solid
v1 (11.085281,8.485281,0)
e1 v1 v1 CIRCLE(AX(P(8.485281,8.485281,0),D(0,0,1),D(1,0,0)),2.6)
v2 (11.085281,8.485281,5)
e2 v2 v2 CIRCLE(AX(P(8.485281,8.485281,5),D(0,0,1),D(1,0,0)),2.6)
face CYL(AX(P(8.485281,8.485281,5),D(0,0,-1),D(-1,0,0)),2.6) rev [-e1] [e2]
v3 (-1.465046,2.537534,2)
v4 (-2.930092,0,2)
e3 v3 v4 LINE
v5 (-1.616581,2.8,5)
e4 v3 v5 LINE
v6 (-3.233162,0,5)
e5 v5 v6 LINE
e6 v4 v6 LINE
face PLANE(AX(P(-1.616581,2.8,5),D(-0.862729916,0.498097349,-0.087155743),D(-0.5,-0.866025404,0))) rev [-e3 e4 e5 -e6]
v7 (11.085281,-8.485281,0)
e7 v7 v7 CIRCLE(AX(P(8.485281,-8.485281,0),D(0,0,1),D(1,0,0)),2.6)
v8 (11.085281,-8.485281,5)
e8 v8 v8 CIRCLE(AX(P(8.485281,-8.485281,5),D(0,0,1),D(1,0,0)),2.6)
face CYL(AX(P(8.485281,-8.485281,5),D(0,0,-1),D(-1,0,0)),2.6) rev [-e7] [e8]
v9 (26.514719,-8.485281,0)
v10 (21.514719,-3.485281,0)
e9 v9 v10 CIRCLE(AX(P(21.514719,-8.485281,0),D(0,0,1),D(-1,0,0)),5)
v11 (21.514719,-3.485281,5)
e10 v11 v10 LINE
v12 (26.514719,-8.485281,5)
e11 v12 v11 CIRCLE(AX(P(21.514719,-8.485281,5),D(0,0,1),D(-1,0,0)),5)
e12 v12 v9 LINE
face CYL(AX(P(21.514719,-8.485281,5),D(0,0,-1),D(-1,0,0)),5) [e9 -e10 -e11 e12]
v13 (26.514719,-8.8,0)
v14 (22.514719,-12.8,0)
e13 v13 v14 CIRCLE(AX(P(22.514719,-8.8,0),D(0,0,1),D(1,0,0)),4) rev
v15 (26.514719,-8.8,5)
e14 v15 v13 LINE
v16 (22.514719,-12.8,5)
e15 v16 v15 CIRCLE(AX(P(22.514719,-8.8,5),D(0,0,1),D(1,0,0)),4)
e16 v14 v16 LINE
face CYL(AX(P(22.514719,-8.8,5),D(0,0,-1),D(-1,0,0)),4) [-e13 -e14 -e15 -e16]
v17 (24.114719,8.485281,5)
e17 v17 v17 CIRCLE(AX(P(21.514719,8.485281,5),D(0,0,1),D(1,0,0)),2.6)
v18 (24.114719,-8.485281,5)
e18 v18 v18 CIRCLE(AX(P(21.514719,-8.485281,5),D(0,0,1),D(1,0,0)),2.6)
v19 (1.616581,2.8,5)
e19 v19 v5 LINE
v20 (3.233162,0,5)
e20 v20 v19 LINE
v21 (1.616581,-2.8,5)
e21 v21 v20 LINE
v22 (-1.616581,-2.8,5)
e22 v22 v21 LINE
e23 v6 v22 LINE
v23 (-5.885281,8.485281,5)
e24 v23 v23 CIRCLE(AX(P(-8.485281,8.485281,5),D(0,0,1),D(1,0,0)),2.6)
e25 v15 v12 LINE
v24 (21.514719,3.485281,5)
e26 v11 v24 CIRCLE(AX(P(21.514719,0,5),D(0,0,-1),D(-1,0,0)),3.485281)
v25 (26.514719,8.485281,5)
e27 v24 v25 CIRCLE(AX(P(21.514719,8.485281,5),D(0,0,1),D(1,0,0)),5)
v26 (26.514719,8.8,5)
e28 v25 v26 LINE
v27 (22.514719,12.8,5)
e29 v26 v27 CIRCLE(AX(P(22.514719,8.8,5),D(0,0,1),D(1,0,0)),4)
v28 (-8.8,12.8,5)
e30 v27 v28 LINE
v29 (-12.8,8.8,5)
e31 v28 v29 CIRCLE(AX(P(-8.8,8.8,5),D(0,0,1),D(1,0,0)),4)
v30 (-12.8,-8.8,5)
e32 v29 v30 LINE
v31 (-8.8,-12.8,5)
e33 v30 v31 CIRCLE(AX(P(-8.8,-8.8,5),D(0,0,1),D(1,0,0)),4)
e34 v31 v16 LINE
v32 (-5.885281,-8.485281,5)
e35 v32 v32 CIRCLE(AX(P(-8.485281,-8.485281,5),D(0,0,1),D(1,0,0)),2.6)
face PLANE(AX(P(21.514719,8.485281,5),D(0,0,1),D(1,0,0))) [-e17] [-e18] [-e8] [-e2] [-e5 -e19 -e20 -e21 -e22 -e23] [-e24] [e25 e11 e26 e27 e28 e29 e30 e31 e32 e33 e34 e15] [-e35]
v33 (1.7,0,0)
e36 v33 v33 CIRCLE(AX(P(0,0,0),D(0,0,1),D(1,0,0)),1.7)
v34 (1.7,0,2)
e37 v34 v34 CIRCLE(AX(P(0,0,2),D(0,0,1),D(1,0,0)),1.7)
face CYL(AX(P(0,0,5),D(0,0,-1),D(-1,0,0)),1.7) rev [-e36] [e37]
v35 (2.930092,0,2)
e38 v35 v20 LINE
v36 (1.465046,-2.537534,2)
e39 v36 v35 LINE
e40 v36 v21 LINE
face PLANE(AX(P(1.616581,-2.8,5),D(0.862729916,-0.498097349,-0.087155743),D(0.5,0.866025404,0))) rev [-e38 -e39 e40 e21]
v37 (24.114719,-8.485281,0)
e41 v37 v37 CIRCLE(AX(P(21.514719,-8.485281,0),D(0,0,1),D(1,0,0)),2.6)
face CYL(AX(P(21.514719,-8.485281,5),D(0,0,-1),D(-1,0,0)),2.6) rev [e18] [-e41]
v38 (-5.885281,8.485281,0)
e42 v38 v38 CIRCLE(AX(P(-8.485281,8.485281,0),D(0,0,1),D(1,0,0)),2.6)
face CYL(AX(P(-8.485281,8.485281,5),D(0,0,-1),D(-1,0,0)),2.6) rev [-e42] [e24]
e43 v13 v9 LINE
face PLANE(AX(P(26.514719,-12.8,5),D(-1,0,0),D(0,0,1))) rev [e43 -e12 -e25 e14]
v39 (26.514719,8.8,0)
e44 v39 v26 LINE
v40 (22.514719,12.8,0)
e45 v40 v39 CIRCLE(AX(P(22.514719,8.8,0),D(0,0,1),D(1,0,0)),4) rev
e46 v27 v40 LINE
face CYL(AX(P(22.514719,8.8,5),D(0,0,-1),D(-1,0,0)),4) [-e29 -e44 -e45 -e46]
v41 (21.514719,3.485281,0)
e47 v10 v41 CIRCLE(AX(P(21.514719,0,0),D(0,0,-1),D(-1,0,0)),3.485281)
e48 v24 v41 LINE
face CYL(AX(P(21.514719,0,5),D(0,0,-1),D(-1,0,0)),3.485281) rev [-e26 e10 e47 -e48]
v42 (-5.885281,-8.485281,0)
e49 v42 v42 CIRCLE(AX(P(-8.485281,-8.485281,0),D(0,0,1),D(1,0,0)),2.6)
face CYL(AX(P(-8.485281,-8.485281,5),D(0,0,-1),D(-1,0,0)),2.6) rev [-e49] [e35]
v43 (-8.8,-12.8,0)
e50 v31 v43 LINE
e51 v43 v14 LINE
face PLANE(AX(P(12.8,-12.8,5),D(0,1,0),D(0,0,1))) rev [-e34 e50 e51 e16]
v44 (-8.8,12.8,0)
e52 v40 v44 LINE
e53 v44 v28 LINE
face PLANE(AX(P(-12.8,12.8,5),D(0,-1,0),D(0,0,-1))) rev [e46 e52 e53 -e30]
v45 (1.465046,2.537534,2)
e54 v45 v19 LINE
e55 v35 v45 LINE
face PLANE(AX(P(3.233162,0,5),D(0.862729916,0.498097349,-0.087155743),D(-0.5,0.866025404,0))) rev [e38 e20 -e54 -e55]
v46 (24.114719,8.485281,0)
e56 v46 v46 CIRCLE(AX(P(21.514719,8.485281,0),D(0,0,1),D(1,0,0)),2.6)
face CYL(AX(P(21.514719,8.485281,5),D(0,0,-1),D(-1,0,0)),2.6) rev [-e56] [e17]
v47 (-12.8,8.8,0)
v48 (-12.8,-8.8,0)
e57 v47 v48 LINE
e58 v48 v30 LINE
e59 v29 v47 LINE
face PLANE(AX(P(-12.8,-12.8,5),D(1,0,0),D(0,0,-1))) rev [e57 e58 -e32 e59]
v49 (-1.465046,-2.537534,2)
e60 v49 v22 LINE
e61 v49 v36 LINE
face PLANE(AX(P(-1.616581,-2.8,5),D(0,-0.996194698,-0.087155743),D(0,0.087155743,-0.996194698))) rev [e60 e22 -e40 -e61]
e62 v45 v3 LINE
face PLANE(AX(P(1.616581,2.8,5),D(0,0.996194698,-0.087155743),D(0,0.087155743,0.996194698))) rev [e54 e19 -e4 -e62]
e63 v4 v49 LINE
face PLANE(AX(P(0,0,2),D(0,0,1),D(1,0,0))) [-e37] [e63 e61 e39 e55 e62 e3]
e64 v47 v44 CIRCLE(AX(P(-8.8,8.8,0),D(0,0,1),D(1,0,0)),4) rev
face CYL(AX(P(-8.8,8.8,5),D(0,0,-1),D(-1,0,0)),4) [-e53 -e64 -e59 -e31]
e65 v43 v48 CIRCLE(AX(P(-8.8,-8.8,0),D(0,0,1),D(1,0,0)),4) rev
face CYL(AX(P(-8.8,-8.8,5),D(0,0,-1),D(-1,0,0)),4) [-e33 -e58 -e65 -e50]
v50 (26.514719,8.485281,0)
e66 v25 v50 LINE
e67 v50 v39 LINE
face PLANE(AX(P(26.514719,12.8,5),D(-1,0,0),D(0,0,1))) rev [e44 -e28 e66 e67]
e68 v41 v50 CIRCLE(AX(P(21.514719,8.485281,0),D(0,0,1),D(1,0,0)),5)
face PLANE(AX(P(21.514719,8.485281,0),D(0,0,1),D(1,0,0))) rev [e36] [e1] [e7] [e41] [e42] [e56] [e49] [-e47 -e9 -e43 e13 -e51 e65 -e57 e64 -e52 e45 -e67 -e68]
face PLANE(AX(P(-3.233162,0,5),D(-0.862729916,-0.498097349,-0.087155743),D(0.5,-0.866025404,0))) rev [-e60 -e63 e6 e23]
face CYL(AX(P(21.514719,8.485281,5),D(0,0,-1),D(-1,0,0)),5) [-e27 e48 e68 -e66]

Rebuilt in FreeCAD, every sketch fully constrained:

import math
import FreeCAD as App
import Part
import Sketcher
from FreeCAD import Vector
Q = App.Units.Quantity


def edges_at(feature, points):
    """Names of the edges that pass closest to the given points."""
    edges = feature.Shape.Edges
    near = lambda p: min(range(len(edges)), key=lambda i: edges[i].distToShape(Part.Vertex(*p))[0])
    return sorted({f"Edge{near(p) + 1}" for p in points})

doc = App.newDocument("Part")
params = doc.addObject("Spreadsheet::Sheet", "Params")
for row, (alias, value) in enumerate([
    ("sketch1_radius", "5 mm"),
    ("sketch1_diameter", "5.2 mm"),
    ("sketch1_diameter2", "3.4 mm"),
    ("sketch1_height", "25.6 mm"),
    ("pad1_length", "5 mm"),
    ("pocket1_length", "3 mm"),
    ("pocket1_taper", "-5 deg"),
    ("fillet_radius", "4 mm"),
], start=1):
    params.set(f"A{row}", alias)
    params.set(f"B{row}", "=" + value)
    params.setAlias(f"B{row}", alias)

body = doc.addObject("PartDesign::Body", "Body")

# Sketch on XY plane
sketch1 = body.newObject("Sketcher::SketchObject", "Sketch")
sketch1.AttachmentSupport = (doc.getObject("XY_Plane"), [""])
sketch1.MapMode = "FlatFace"
sketch1.addGeometry(Part.LineSegment(Vector(-12.8, -12.8, 0), Vector(26.5, -12.8, 0)), False)
sketch1.addGeometry(Part.LineSegment(Vector(26.5, -12.8, 0), Vector(26.5, -8.5, 0)), False)
sketch1.addGeometry(Part.ArcOfCircle(Part.Circle(Vector(21.5, -8.5, 0), Vector(0, 0, 1), 5), math.radians(0), math.radians(90)), False)
sketch1.addGeometry(Part.ArcOfCircle(Part.Circle(Vector(21.5, 0, 0), Vector(0, 0, 1), 3.5), math.radians(90), math.radians(270)), False)
sketch1.addGeometry(Part.ArcOfCircle(Part.Circle(Vector(21.5, 8.5, 0), Vector(0, 0, 1), 5), math.radians(-90), math.radians(0)), False)
sketch1.addGeometry(Part.LineSegment(Vector(26.5, 8.5, 0), Vector(26.5, 12.8, 0)), False)
sketch1.addGeometry(Part.LineSegment(Vector(26.5, 12.8, 0), Vector(-12.8, 12.8, 0)), False)
sketch1.addGeometry(Part.LineSegment(Vector(-12.8, 12.8, 0), Vector(-12.8, -12.8, 0)), False)
sketch1.addGeometry(Part.Circle(Vector(-8.5, -8.5, 0), Vector(0, 0, 1), 2.6), False)
sketch1.addGeometry(Part.Circle(Vector(8.5, -8.5, 0), Vector(0, 0, 1), 2.6), False)
sketch1.addGeometry(Part.Circle(Vector(21.5, -8.5, 0), Vector(0, 0, 1), 2.6), False)
sketch1.addGeometry(Part.Circle(Vector(0, 0, 0), Vector(0, 0, 1), 1.7), False)
sketch1.addGeometry(Part.Circle(Vector(-8.5, 8.5, 0), Vector(0, 0, 1), 2.6), False)
sketch1.addGeometry(Part.Circle(Vector(8.5, 8.5, 0), Vector(0, 0, 1), 2.6), False)
sketch1.addGeometry(Part.Circle(Vector(21.5, 8.5, 0), Vector(0, 0, 1), 2.6), False)
sketch1.addConstraint(Sketcher.Constraint("Coincident", 0, 2, 1, 1))
sketch1.addConstraint(Sketcher.Constraint("Tangent", 1, 2, 2, 1))
sketch1.addConstraint(Sketcher.Constraint("Tangent", 2, 2, 3, 2))
sketch1.addConstraint(Sketcher.Constraint("Tangent", 3, 1, 4, 1))
sketch1.addConstraint(Sketcher.Constraint("Tangent", 4, 2, 5, 1))
sketch1.addConstraint(Sketcher.Constraint("Coincident", 5, 2, 6, 1))
sketch1.addConstraint(Sketcher.Constraint("Coincident", 6, 2, 7, 1))
sketch1.addConstraint(Sketcher.Constraint("Coincident", 7, 2, 0, 1))
sketch1.addConstraint(Sketcher.Constraint("Horizontal", 0))
sketch1.addConstraint(Sketcher.Constraint("Vertical", 1))
sketch1.addConstraint(Sketcher.Constraint("Vertical", 5))
sketch1.addConstraint(Sketcher.Constraint("Horizontal", 6))
sketch1.addConstraint(Sketcher.Constraint("Vertical", 7))
sketch1.addConstraint(Sketcher.Constraint("Coincident", 11, 3, -1, 1))
sketch1.addConstraint(Sketcher.Constraint("Coincident", 10, 3, 2, 3))
sketch1.addConstraint(Sketcher.Constraint("Coincident", 14, 3, 4, 3))
sketch1.addConstraint(Sketcher.Constraint("Equal", 2, 4))
sketch1.addConstraint(Sketcher.Constraint("Equal", 8, 9))
sketch1.addConstraint(Sketcher.Constraint("Equal", 9, 10))
sketch1.addConstraint(Sketcher.Constraint("Equal", 10, 12))
sketch1.addConstraint(Sketcher.Constraint("Equal", 12, 13))
sketch1.addConstraint(Sketcher.Constraint("Equal", 13, 14))
sketch1.addConstraint(Sketcher.Constraint("Symmetric", 9, 3, 12, 3, -1, 1))
sketch1.addConstraint(Sketcher.Constraint("Symmetric", 8, 3, 13, 3, -1, 1))
sketch1.addConstraint(Sketcher.Constraint("Symmetric", 8, 3, 9, 3, -2))
sketch1.addConstraint(Sketcher.Constraint("Symmetric", 2, 3, 4, 3, -1))
sketch1.addConstraint(Sketcher.Constraint("Horizontal", 2, 3, 8, 3))
sketch1.addConstraint(Sketcher.Constraint("Vertical", 2, 3, 3, 3))
sketch1.addConstraint(Sketcher.Constraint("Equal", 1, 5))
sketch1.addConstraint(Sketcher.Constraint("Radius", 2, 5.0))
sketch1.addConstraint(Sketcher.Constraint("Diameter", 8, 5.2))
sketch1.addConstraint(Sketcher.Constraint("Diameter", 11, 3.4))
sketch1.addConstraint(Sketcher.Constraint("DistanceY", 7, 2, 7, 1, 25.6))
sketch1.addConstraint(Sketcher.Constraint("DistanceX", 8, 3, 2, 3, 30.0))
sketch1.addConstraint(Sketcher.Constraint("DistanceX", 6, 2, -1, 1, 12.8))
sketch1.addConstraint(Sketcher.Constraint("Radius", 3, 3.485281))
sketch1.addConstraint(Sketcher.Constraint("DistanceX", 0, 1, 0, 2, 39.314719))
sketch1.setExpression("Constraints[29]", "Params.sketch1_radius")
sketch1.setExpression("Constraints[30]", "Params.sketch1_diameter")
sketch1.setExpression("Constraints[31]", "Params.sketch1_diameter2")
sketch1.setExpression("Constraints[32]", "Params.sketch1_height")
pad1 = body.newObject("PartDesign::Pad", "Pad")
pad1.Profile = sketch1
pad1.setExpression("Length", "Params.pad1_length")

# Sketch on XY plane
sketch2 = body.newObject("Sketcher::SketchObject", "Sketch001")
sketch2.AttachmentSupport = (doc.getObject("XY_Plane"), [""])
sketch2.MapMode = "FlatFace"
sketch2.AttachmentOffset = App.Placement(Vector(0, 0, 5), App.Rotation())
sketch2.addGeometry(Part.LineSegment(Vector(3.2, 0, 0), Vector(1.6, 2.8, 0)), False)
sketch2.addGeometry(Part.LineSegment(Vector(1.6, 2.8, 0), Vector(-1.6, 2.8, 0)), False)
sketch2.addGeometry(Part.LineSegment(Vector(-1.6, 2.8, 0), Vector(-3.2, 0, 0)), False)
sketch2.addGeometry(Part.LineSegment(Vector(-3.2, 0, 0), Vector(-1.6, -2.8, 0)), False)
sketch2.addGeometry(Part.LineSegment(Vector(-1.6, -2.8, 0), Vector(1.6, -2.8, 0)), False)
sketch2.addGeometry(Part.LineSegment(Vector(1.6, -2.8, 0), Vector(3.2, 0, 0)), False)
sketch2.addConstraint(Sketcher.Constraint("Coincident", 0, 2, 1, 1))
sketch2.addConstraint(Sketcher.Constraint("Coincident", 1, 2, 2, 1))
sketch2.addConstraint(Sketcher.Constraint("Coincident", 2, 2, 3, 1))
sketch2.addConstraint(Sketcher.Constraint("Coincident", 3, 2, 4, 1))
sketch2.addConstraint(Sketcher.Constraint("Coincident", 4, 2, 5, 1))
sketch2.addConstraint(Sketcher.Constraint("Coincident", 5, 2, 0, 1))
sketch2.addConstraint(Sketcher.Constraint("Horizontal", 1))
sketch2.addConstraint(Sketcher.Constraint("Horizontal", 4))
sketch2.addConstraint(Sketcher.Constraint("Symmetric", 0, 2, 3, 2, -1, 1))
sketch2.addConstraint(Sketcher.Constraint("Symmetric", 2, 2, 5, 2, -1, 1))
sketch2.addConstraint(Sketcher.Constraint("PointOnObject", 2, 2, -1))
sketch2.addConstraint(Sketcher.Constraint("Parallel", 2, 5))
sketch2.addConstraint(Sketcher.Constraint("Vertical", 1, 2, 3, 2))
sketch2.addConstraint(Sketcher.Constraint("Angle", 0, Q("120 deg")))
sketch2.addConstraint(Sketcher.Constraint("DistanceY", -1, 1, 0, 2, 2.8))
sketch2.addConstraint(Sketcher.Constraint("DistanceX", 1, 2, 1, 1, 3.233162))
pocket1 = body.newObject("PartDesign::Pocket", "Pocket")
pocket1.Profile = sketch2
pocket1.setExpression("Length", "Params.pocket1_length")
pocket1.setExpression("TaperAngle", "Params.pocket1_taper")
doc.recompute()

fillet = body.newObject("PartDesign::Fillet", "Fillet")
fillet.Base = (pocket1, edges_at(pocket1, [
    (26.515, 12.8, 2.5),
    (26.515, -12.8, 2.5),
    (-12.8, -12.8, 2.5),
    (-12.8, 12.8, 2.5),
]))
fillet.setExpression("Radius", "Params.fillet_radius")

doc.recompute()
